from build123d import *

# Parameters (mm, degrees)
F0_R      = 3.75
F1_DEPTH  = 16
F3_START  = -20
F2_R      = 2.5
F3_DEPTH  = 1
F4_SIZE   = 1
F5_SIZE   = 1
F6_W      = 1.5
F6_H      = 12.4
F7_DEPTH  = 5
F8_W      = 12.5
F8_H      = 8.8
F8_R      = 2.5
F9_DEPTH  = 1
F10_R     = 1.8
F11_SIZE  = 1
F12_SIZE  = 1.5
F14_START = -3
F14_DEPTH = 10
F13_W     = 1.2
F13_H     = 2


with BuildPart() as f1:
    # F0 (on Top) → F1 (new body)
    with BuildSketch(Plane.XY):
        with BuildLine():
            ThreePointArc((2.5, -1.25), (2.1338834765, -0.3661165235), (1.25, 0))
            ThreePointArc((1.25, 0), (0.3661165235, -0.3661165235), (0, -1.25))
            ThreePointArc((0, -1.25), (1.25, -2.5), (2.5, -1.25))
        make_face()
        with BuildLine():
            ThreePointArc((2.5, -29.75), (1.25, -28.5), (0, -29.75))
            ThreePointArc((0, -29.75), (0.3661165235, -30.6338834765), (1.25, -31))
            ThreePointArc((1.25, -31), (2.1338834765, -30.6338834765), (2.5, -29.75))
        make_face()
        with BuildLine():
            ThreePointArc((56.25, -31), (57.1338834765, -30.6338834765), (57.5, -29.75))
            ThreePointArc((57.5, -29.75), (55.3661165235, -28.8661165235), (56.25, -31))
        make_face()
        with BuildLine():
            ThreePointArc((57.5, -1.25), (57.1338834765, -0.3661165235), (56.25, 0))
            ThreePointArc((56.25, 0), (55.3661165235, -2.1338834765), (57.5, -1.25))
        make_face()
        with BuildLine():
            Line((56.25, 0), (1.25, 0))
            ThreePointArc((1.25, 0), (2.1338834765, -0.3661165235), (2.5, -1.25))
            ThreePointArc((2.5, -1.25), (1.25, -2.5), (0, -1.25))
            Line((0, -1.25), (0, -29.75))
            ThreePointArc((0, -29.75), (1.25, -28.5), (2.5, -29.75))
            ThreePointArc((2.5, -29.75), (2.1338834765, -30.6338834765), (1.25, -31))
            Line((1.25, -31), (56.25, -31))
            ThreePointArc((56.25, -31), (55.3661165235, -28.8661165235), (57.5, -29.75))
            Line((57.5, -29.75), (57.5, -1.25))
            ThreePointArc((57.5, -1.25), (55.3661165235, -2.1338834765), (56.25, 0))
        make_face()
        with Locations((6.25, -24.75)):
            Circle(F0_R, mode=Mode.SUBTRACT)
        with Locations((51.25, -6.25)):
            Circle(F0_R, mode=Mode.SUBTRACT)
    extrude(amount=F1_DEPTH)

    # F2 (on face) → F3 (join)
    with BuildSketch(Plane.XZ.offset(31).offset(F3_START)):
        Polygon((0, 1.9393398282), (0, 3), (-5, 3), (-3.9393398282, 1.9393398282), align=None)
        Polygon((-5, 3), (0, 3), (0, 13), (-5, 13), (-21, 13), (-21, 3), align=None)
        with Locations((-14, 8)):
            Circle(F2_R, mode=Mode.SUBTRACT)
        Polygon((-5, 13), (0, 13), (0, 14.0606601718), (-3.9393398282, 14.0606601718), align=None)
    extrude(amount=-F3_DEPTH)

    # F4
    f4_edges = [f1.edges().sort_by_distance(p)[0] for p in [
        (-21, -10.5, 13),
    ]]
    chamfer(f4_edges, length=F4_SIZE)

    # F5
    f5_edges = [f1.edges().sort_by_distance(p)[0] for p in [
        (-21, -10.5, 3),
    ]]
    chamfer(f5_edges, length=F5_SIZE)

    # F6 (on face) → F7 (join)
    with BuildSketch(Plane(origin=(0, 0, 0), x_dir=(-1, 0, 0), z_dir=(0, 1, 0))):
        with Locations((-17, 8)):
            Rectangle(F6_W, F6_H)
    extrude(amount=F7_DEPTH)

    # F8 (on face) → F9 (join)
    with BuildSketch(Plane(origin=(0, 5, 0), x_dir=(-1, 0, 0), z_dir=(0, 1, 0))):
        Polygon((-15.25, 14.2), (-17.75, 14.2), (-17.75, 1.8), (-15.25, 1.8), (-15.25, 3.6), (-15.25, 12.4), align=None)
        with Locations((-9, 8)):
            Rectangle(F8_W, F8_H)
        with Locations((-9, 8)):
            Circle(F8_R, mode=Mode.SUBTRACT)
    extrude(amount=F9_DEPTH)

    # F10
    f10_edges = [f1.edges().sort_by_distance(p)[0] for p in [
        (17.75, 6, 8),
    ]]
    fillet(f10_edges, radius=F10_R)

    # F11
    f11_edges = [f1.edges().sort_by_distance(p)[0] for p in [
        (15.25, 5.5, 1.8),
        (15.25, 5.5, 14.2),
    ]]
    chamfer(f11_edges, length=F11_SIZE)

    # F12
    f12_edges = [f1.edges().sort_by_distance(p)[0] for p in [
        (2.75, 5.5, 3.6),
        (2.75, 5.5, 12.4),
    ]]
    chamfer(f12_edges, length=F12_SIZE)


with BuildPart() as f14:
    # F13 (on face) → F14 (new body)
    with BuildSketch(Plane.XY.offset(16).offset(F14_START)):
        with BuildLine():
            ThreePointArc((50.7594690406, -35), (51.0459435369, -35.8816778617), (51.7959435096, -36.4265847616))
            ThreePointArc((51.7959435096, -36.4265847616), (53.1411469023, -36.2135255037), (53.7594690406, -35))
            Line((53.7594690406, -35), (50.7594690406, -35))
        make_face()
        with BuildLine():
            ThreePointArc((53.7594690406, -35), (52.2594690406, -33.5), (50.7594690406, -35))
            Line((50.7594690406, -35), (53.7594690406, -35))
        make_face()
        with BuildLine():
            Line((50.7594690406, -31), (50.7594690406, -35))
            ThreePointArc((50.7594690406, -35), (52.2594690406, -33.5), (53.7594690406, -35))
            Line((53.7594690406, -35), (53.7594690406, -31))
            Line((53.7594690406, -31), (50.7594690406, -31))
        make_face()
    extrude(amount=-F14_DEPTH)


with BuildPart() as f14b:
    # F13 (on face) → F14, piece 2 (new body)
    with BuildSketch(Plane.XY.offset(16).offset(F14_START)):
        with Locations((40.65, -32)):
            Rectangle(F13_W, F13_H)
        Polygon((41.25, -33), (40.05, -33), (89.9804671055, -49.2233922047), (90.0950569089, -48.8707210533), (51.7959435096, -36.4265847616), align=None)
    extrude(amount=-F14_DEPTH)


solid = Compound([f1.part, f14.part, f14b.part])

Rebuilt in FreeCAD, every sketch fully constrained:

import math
import FreeCAD as App
import Part
import Sketcher

V = App.Vector
Q = App.Units.Quantity


def edges_at(feature, points):
    """Names of the edges that pass closest to the given points."""
    edges = feature.Shape.Edges
    near = lambda p: min(range(len(edges)), key=lambda i: edges[i].distToShape(Part.Vertex(*p))[0])
    return sorted({f"Edge{near(p) + 1}" for p in points})

doc = App.newDocument("Part")
body = doc.addObject("PartDesign::Body", "Body")

# Sketch on XY plane
sketch1 = body.newObject("Sketcher::SketchObject", "Sketch")
sketch1.AttachmentSupport = (doc.getObject("XY_Plane"), [""])
sketch1.MapMode = "FlatFace"
sketch1.addGeometry([
    Part.ArcOfCircle(Part.Circle(V(1.25, -1.25, 0), V(0, 0, 1), 1.25), math.radians(90), math.radians(180)),  # 0
    Part.LineSegment(V(0, -1.25, 0), V(0, -29.75, 0)),  # 1
    Part.ArcOfCircle(Part.Circle(V(1.25, -29.75, 0), V(0, 0, 1), 1.25), math.radians(180), math.radians(270)),  # 2
    Part.LineSegment(V(1.25, -31, 0), V(56.25, -31, 0)),  # 3
    Part.ArcOfCircle(Part.Circle(V(56.25, -29.75, 0), V(0, 0, 1), 1.25), math.radians(-90), math.radians(0)),  # 4
    Part.LineSegment(V(57.5, -29.75, 0), V(57.5, -1.25, 0)),  # 5
    Part.ArcOfCircle(Part.Circle(V(56.25, -1.25, 0), V(0, 0, 1), 1.25), math.radians(0), math.radians(90)),  # 6
    Part.LineSegment(V(56.25, 0, 0), V(1.25, 0, 0)),  # 7
    Part.Circle(V(6.25, -24.75, 0), V(0, 0, 1), 3.75),  # 8
    Part.Circle(V(51.25, -6.25, 0), V(0, 0, 1), 3.75),  # 9
], False)
sketch1.addConstraint([
    Sketcher.Constraint("Tangent", 0, 2, 1, 1),
    Sketcher.Constraint("Tangent", 1, 2, 2, 1),
    Sketcher.Constraint("Tangent", 2, 2, 3, 1),
    Sketcher.Constraint("Tangent", 3, 2, 4, 1),
    Sketcher.Constraint("Tangent", 4, 2, 5, 1),
    Sketcher.Constraint("Tangent", 5, 2, 6, 1),
    Sketcher.Constraint("Tangent", 6, 2, 7, 1),
    Sketcher.Constraint("Tangent", 7, 2, 0, 1),
    Sketcher.Constraint("Vertical", 1),
    Sketcher.Constraint("Horizontal", 3),
    Sketcher.Constraint("Vertical", 5),
    Sketcher.Constraint("Horizontal", 7),
    Sketcher.Constraint("Equal", 0, 2),
    Sketcher.Constraint("Equal", 2, 4),
    Sketcher.Constraint("Equal", 4, 6),
    Sketcher.Constraint("Equal", 8, 9),
    Sketcher.Constraint("PointOnObject", 0, 2, -2),
    Sketcher.Constraint("PointOnObject", 6, 2, -1),
    Sketcher.Constraint("Diameter", 8, Q("7.5 mm")),
    Sketcher.Constraint("DistanceX", 3, 1, 3, 2, Q("55 mm")),
    Sketcher.Constraint("Radius", 0, Q("1.25 mm")),
    Sketcher.Constraint("DistanceY", 1, 2, 1, 1, Q("28.5 mm")),
    Sketcher.Constraint("DistanceX", 2, 3, 8, 3, Q("5 mm")),
    Sketcher.Constraint("DistanceY", 2, 3, 8, 3, Q("5 mm")),
    Sketcher.Constraint("DistanceX", 9, 3, 6, 3, Q("5 mm")),
    Sketcher.Constraint("DistanceY", 9, 3, 6, 3, Q("5 mm")),
])
pad1 = body.newObject("PartDesign::Pad", "Pad")
pad1.Profile = sketch1
pad1.Length = 16

# Sketch on XZ plane
sketch2 = body.newObject("Sketcher::SketchObject", "Sketch001")
sketch2.AttachmentSupport = (doc.getObject("XZ_Plane"), [""])
sketch2.MapMode = "FlatFace"
sketch2.AttachmentOffset = App.Placement(V(0, 0, 11), App.Rotation())
sketch2.addGeometry([
    Part.LineSegment(V(0, 1.93934, 0), V(0, 14.06066, 0)),  # 0
    Part.LineSegment(V(0, 14.06066, 0), V(-3.93934, 14.06066, 0)),  # 1
    Part.LineSegment(V(-3.93934, 14.06066, 0), V(-5, 13, 0)),  # 2
    Part.LineSegment(V(-5, 13, 0), V(-21, 13, 0)),  # 3
    Part.LineSegment(V(-21, 13, 0), V(-21, 3, 0)),  # 4
    Part.LineSegment(V(-21, 3, 0), V(-5, 3, 0)),  # 5
    Part.LineSegment(V(-5, 3, 0), V(-3.93934, 1.93934, 0)),  # 6
    Part.LineSegment(V(-3.93934, 1.93934, 0), V(0, 1.93934, 0)),  # 7
    Part.Circle(V(-14, 8, 0), V(0, 0, 1), 2.5),  # 8
], False)
sketch2.addConstraint([
    Sketcher.Constraint("Coincident", 0, 2, 1, 1),
    Sketcher.Constraint("Coincident", 1, 2, 2, 1),
    Sketcher.Constraint("Coincident", 2, 2, 3, 1),
    Sketcher.Constraint("Coincident", 3, 2, 4, 1),
    Sketcher.Constraint("Coincident", 4, 2, 5, 1),
    Sketcher.Constraint("Coincident", 5, 2, 6, 1),
    Sketcher.Constraint("Coincident", 6, 2, 7, 1),
    Sketcher.Constraint("Coincident", 7, 2, 0, 1),
    Sketcher.Constraint("Vertical", 0),
    Sketcher.Constraint("Horizontal", 1),
    Sketcher.Constraint("Horizontal", 3),
    Sketcher.Constraint("Vertical", 4),
    Sketcher.Constraint("Horizontal", 5),
    Sketcher.Constraint("Horizontal", 7),
    Sketcher.Constraint("PointOnObject", 0, 2, -2),
    Sketcher.Constraint("Perpendicular", 2, 6),
    Sketcher.Constraint("Vertical", 2, 2, 5, 2),
    Sketcher.Constraint("Vertical", 1, 2, 6, 2),
    Sketcher.Constraint("Equal", 2, 6),
    Sketcher.Constraint("Diameter", 8, Q("5 mm")),
    Sketcher.Constraint("DistanceX", 3, 2, 3, 1, Q("16 mm")),
    Sketcher.Constraint("DistanceY", 4, 2, 4, 1, Q("10 mm")),
    Sketcher.Constraint("DistanceX", 8, 3, -1, 1, Q("14 mm")),
    Sketcher.Constraint("DistanceY", -1, 1, 8, 3, Q("8 mm")),
    Sketcher.Constraint("DistanceX", 2, 2, -1, 1, Q("5 mm")),
    Sketcher.Constraint("DistanceY", -1, 1, 2, 2, Q("13 mm")),
    Sketcher.Constraint("Distance", 2, Q("1.5 mm")),
])
pad2 = body.newObject("PartDesign::Pad", "Pad001")
pad2.Profile = sketch2
pad2.Length = 1
pad2.Reversed = True
doc.recompute()

chamfer = body.newObject("PartDesign::Chamfer", "Chamfer")
chamfer.Base = (pad2, edges_at(pad2, [(-21, -10.5, 13)]))
chamfer.Size = 1
doc.recompute()

chamfer2 = body.newObject("PartDesign::Chamfer", "Chamfer001")
chamfer2.Base = (chamfer, edges_at(chamfer, [(-21, -10.5, 3)]))
chamfer2.Size = 1

# Sketch on XZ plane
sketch3 = body.newObject("Sketcher::SketchObject", "Sketch002")
sketch3.AttachmentSupport = (doc.getObject("XZ_Plane"), [""])
sketch3.MapMode = "FlatFace"
sketch3.addGeometry([
    Part.LineSegment(V(17.75, 14.2, 0), V(17.75, 1.8, 0)),
    Part.LineSegment(V(17.75, 1.8, 0), V(16.25, 1.8, 0)),
    Part.LineSegment(V(16.25, 1.8, 0), V(16.25, 14.2, 0)),
    Part.LineSegment(V(16.25, 14.2, 0), V(17.75, 14.2, 0)),
], False)
sketch3.addConstraint([
    Sketcher.Constraint("Coincident", 0, 2, 1, 1),
    Sketcher.Constraint("Coincident", 1, 2, 2, 1),
    Sketcher.Constraint("Coincident", 2, 2, 3, 1),
    Sketcher.Constraint("Coincident", 3, 2, 0, 1),
    Sketcher.Constraint("Vertical", 0),
    Sketcher.Constraint("Horizontal", 1),
    Sketcher.Constraint("Vertical", 2),
    Sketcher.Constraint("Horizontal", 3),
    Sketcher.Constraint("DistanceX", 1, 2, 1, 1, Q("1.5 mm")),
    Sketcher.Constraint("DistanceY", 0, 2, 0, 1, Q("12.4 mm")),
    Sketcher.Constraint("DistanceY", -1, 1, 0, 2, Q("1.8 mm")),
    Sketcher.Constraint("DistanceX", -1, 1, 0, 2, Q("17.75 mm")),
])
pad3 = body.newObject("PartDesign::Pad", "Pad002")
pad3.Profile = sketch3
pad3.Length = 5
pad3.Reversed = True

# Sketch on XZ plane
sketch4 = body.newObject("Sketcher::SketchObject", "Sketch003")
sketch4.AttachmentSupport = (doc.getObject("XZ_Plane"), [""])
sketch4.MapMode = "FlatFace"
sketch4.AttachmentOffset = App.Placement(V(0, 0, -5), App.Rotation())
sketch4.addGeometry([
    Part.LineSegment(V(15.25, 14.2, 0), V(17.75, 14.2, 0)),  # 0
    Part.LineSegment(V(17.75, 14.2, 0), V(17.75, 1.8, 0)),  # 1
    Part.LineSegment(V(17.75, 1.8, 0), V(15.25, 1.8, 0)),  # 2
    Part.LineSegment(V(15.25, 1.8, 0), V(15.25, 3.6, 0)),  # 3
    Part.LineSegment(V(15.25, 3.6, 0), V(2.75, 3.6, 0)),  # 4
    Part.LineSegment(V(2.75, 3.6, 0), V(2.75, 12.4, 0)),  # 5
    Part.LineSegment(V(2.75, 12.4, 0), V(15.25, 12.4, 0)),  # 6
    Part.LineSegment(V(15.25, 12.4, 0), V(15.25, 14.2, 0)),  # 7
    Part.Circle(V(9, 8, 0), V(0, 0, 1), 2.5),  # 8
], False)
sketch4.addConstraint([
    Sketcher.Constraint("Coincident", 0, 2, 1, 1),
    Sketcher.Constraint("Coincident", 1, 2, 2, 1),
    Sketcher.Constraint("Coincident", 2, 2, 3, 1),
    Sketcher.Constraint("Coincident", 3, 2, 4, 1),
    Sketcher.Constraint("Coincident", 4, 2, 5, 1),
    Sketcher.Constraint("Coincident", 5, 2, 6, 1),
    Sketcher.Constraint("Coincident", 6, 2, 7, 1),
    Sketcher.Constraint("Coincident", 7, 2, 0, 1),
    Sketcher.Constraint("Horizontal", 0),
    Sketcher.Constraint("Vertical", 1),
    Sketcher.Constraint("Horizontal", 2),
    Sketcher.Constraint("Vertical", 3),
    Sketcher.Constraint("Horizontal", 4),
    Sketcher.Constraint("Vertical", 5),
    Sketcher.Constraint("Horizontal", 6),
    Sketcher.Constraint("Vertical", 7),
    Sketcher.Constraint("Vertical", 3, 2, 6, 2),
    Sketcher.Constraint("Equal", 3, 7),
    Sketcher.Constraint("Diameter", 8, Q("5 mm")),
    Sketcher.Constraint("DistanceX", 0, 1, 0, 2, Q("2.5 mm")),
    Sketcher.Constraint("DistanceX", 4, 2, 4, 1, Q("12.5 mm")),
    Sketcher.Constraint("DistanceY", 1, 2, 1, 1, Q("12.4 mm")),
    Sketcher.Constraint("DistanceY", 3, 1, 3, 2, Q("1.8 mm")),
    Sketcher.Constraint("DistanceX", -1, 1, 8, 3, Q("9 mm")),
    Sketcher.Constraint("DistanceY", -1, 1, 8, 3, Q("8 mm")),
    Sketcher.Constraint("DistanceY", -1, 1, 0, 2, Q("14.2 mm")),
    Sketcher.Constraint("DistanceX", -1, 1, 0, 2, Q("17.75 mm")),
])
pad4 = body.newObject("PartDesign::Pad", "Pad003")
pad4.Profile = sketch4
pad4.Length = 1
pad4.Reversed = True
doc.recompute()

fillet = body.newObject("PartDesign::Fillet", "Fillet")
fillet.Base = (pad4, edges_at(pad4, [(17.75, 6, 8)]))
fillet.Radius = 1.8
doc.recompute()

chamfer3 = body.newObject("PartDesign::Chamfer", "Chamfer002")
chamfer3.Base = (fillet, edges_at(fillet, [(15.25, 5.5, 1.8), (15.25, 5.5, 14.2)]))
chamfer3.Size = 1
doc.recompute()

chamfer4 = body.newObject("PartDesign::Chamfer", "Chamfer003")
chamfer4.Base = (chamfer3, edges_at(chamfer3, [(2.75, 5.5, 3.6), (2.75, 5.5, 12.4)]))
chamfer4.Size = 1.5
body2 = doc.addObject("PartDesign::Body", "Body001")

# Sketch on XY plane
sketch5 = body2.newObject("Sketcher::SketchObject", "Sketch004")
sketch5.AttachmentSupport = (doc.getObject("XY_Plane001"), [""])
sketch5.MapMode = "FlatFace"
sketch5.AttachmentOffset = App.Placement(V(0, 0, 13), App.Rotation())
sketch5.addGeometry([
    Part.ArcOfCircle(Part.Circle(V(52.259469, -35, 0), V(0, 0, 1), 1.5), math.radians(180), math.radians(360)),
    Part.LineSegment(V(53.759469, -35, 0), V(53.759469, -31, 0)),
    Part.LineSegment(V(53.759469, -31, 0), V(50.759469, -31, 0)),
    Part.LineSegment(V(50.759469, -31, 0), V(50.759469, -35, 0)),
], False)
sketch5.addConstraint([
    Sketcher.Constraint("Tangent", 0, 2, 1, 1),
    Sketcher.Constraint("Coincident", 1, 2, 2, 1),
    Sketcher.Constraint("Coincident", 2, 2, 3, 1),
    Sketcher.Constraint("Tangent", 3, 2, 0, 1),
    Sketcher.Constraint("Vertical", 1),
    Sketcher.Constraint("Horizontal", 2),
    Sketcher.Constraint("Vertical", 3),
    Sketcher.Constraint("Radius", 0, Q("1.5 mm")),
    Sketcher.Constraint("DistanceY", 1, 1, 1, 2, Q("4 mm")),
    Sketcher.Constraint("DistanceY", 0, 3, -1, 1, Q("35 mm")),
    Sketcher.Constraint("DistanceX", -1, 1, 0, 3, Q("52.259469 mm")),
])
pad5 = body2.newObject("PartDesign::Pad", "Pad004")
pad5.Profile = sketch5
pad5.Length = 10
pad5.Reversed = True
body3 = doc.addObject("PartDesign::Body", "Body002")

# Sketch on XY plane
sketch6 = body3.newObject("Sketcher::SketchObject", "Sketch005")
sketch6.AttachmentSupport = (doc.getObject("XY_Plane002"), [""])
sketch6.MapMode = "FlatFace"
sketch6.AttachmentOffset = App.Placement(V(0, 0, 13), App.Rotation())
sketch6.addGeometry([
    Part.LineSegment(V(40.05, -31, 0), V(40.05, -33, 0)),  # 0
    Part.LineSegment(V(40.05, -33, 0), V(89.980467, -49.223392, 0)),  # 1
    Part.LineSegment(V(89.980467, -49.223392, 0), V(90.095057, -48.870721, 0)),  # 2
    Part.LineSegment(V(90.095057, -48.870721, 0), V(51.795944, -36.426585, 0)),  # 3
    Part.LineSegment(V(51.795944, -36.426585, 0), V(41.25, -33, 0)),  # 4
    Part.LineSegment(V(41.25, -33, 0), V(41.25, -31, 0)),  # 5
    Part.LineSegment(V(41.25, -31, 0), V(40.05, -31, 0)),  # 6
], False)
sketch6.addConstraint([
    Sketcher.Constraint("Coincident", 0, 2, 1, 1),
    Sketcher.Constraint("Coincident", 1, 2, 2, 1),
    Sketcher.Constraint("Coincident", 2, 2, 3, 1),
    Sketcher.Constraint("Coincident", 3, 2, 4, 1),
    Sketcher.Constraint("Coincident", 4, 2, 5, 1),
    Sketcher.Constraint("Coincident", 5, 2, 6, 1),
    Sketcher.Constraint("Coincident", 6, 2, 0, 1),
    Sketcher.Constraint("Vertical", 0),
    Sketcher.Constraint("Vertical", 5),
    Sketcher.Constraint("Horizontal", 6),
    Sketcher.Constraint("Perpendicular", 1, 2),
    Sketcher.Constraint("Perpendicular", 2, 3),
    Sketcher.Constraint("Parallel", 3, 4),
    Sketcher.Constraint("Horizontal", 0, 2, 4, 2),
    Sketcher.Constraint("DistanceY", 0, 2, 0, 1, Q("2 mm")),
    Sketcher.Constraint("Angle", 1, Q("-18 deg")),
    Sketcher.Constraint("DistanceX", 6, 2, 6, 1, Q("1.2 mm")),
    Sketcher.Constraint("DistanceY", 0, 2, -1, 1, Q("33 mm")),
    Sketcher.Constraint("Distance", 1, Q("52.5 mm")),
    Sketcher.Constraint("DistanceX", -1, 1, 0, 2, Q("40.05 mm")),
    Sketcher.Constraint("Distance", 3, Q("40.270071 mm")),
])
pad6 = body3.newObject("PartDesign::Pad", "Pad005")
pad6.Profile = sketch6
pad6.Length = 10
pad6.Reversed = True

doc.recompute()
